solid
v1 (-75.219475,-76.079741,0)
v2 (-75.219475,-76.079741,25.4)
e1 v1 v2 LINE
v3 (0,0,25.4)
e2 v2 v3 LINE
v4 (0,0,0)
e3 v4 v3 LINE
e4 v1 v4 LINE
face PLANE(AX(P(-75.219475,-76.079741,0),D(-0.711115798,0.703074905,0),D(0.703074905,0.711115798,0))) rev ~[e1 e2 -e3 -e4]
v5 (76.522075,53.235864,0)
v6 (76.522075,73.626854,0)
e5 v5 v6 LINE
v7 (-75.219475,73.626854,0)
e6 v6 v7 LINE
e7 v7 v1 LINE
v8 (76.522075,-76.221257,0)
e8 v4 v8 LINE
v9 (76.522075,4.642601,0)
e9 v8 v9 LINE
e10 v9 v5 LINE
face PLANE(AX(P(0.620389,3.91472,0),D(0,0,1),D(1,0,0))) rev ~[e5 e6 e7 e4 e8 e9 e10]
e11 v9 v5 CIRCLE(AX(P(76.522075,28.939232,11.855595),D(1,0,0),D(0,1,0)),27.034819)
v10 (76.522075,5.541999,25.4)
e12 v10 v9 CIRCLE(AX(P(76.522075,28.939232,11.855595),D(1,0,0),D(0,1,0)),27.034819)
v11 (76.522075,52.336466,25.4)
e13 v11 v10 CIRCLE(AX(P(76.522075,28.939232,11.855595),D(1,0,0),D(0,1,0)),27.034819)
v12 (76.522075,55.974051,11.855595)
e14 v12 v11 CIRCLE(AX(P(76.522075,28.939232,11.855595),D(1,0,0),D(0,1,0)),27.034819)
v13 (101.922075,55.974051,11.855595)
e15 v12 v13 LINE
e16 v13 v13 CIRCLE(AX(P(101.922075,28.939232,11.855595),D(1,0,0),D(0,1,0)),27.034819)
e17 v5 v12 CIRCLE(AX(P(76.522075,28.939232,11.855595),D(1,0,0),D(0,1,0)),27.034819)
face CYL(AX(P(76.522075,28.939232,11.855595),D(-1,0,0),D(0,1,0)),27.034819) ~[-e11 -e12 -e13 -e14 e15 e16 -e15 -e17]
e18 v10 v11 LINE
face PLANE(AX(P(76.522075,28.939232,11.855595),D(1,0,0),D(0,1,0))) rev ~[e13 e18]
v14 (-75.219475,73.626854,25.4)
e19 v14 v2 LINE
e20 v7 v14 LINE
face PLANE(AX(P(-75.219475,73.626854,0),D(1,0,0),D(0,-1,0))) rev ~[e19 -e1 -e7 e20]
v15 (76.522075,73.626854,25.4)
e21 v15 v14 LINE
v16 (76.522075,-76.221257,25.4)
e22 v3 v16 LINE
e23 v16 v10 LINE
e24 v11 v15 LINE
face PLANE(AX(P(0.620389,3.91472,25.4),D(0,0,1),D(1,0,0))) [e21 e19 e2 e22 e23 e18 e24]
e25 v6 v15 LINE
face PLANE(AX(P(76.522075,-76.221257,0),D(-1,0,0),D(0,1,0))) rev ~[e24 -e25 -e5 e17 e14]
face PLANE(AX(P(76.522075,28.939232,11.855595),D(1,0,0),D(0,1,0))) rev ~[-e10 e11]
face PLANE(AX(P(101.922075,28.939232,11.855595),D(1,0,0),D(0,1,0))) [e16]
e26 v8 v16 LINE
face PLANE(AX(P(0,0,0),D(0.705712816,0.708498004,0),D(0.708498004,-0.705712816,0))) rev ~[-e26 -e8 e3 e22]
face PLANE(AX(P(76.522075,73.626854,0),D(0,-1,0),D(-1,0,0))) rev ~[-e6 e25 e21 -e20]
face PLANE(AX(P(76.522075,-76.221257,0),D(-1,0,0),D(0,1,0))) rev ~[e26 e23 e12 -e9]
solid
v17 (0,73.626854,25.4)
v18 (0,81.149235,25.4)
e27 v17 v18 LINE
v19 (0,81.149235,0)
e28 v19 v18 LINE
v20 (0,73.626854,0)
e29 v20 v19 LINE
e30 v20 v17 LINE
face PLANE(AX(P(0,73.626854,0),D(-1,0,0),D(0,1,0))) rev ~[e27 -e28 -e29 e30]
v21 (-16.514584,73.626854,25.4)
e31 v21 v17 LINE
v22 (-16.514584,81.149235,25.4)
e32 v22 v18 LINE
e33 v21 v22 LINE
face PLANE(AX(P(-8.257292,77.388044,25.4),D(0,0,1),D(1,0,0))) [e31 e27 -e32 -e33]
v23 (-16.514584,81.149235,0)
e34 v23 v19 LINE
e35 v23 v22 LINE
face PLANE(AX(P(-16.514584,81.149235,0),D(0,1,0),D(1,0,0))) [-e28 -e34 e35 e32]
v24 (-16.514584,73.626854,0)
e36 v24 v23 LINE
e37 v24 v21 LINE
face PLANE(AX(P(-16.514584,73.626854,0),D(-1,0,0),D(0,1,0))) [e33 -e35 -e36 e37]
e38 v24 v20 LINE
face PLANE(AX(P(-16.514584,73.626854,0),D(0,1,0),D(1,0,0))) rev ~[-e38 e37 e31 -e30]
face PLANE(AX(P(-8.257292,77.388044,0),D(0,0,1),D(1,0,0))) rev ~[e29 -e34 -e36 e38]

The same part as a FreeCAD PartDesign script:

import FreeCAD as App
import Part
import Sketcher

V = App.Vector
Q = App.Units.Quantity


def add_polygon(sketch, points):
    """Adds a closed chain of lines whose ends are joined by coincident constraints."""
    first, n = sketch.GeometryCount, len(points)
    for a, b in zip(points, points[1:] + points[:1]):
        sketch.addGeometry(Part.LineSegment(App.Vector(*a, 0), App.Vector(*b, 0)), False)
    for i in range(n):
        sketch.addConstraint(Sketcher.Constraint("Coincident", first + i, 2, first + (i + 1) % n, 1))

doc = App.newDocument("Part")
body = doc.addObject("PartDesign::Body", "Body")

# Sketch on XY plane
sketch1 = body.newObject("Sketcher::SketchObject", "Sketch")
sketch1.AttachmentSupport = (doc.getObject("XY_Plane"), [""])
sketch1.MapMode = "FlatFace"
add_polygon(sketch1, [(-75.219475, -76.079741), (0, 0), (76.522075, -76.221257), (76.522075, 73.626854), (-75.219475, 73.626854)])  # lines 0-4
sketch1.addConstraint([
    Sketcher.Constraint("Vertical", 2),
    Sketcher.Constraint("Horizontal", 3),
    Sketcher.Constraint("Vertical", 4),
    Sketcher.Constraint("Coincident", 0, 2, -1, 1),
    Sketcher.Constraint("DistanceX", 3, 2, 3, 1, Q("151.741549 mm")),
    Sketcher.Constraint("DistanceY", 2, 1, 2, 2, Q("149.848111 mm")),
    Sketcher.Constraint("Distance", 0, Q("106.986431 mm")),
    Sketcher.Constraint("DistanceY", 4, 2, 4, 1, Q("149.706595 mm")),
    Sketcher.Constraint("DistanceY", 4, 2, -1, 1, Q("76.079741 mm")),
])
pad1 = body.newObject("PartDesign::Pad", "Pad")
pad1.Profile = sketch1
pad1.Length = Q("1 in")

# Sketch on YZ plane
sketch2 = body.newObject("Sketcher::SketchObject", "Sketch001")
sketch2.AttachmentSupport = (doc.getObject("YZ_Plane"), [""])
sketch2.MapMode = "FlatFace"
sketch2.AttachmentOffset = App.Placement(V(0, 0, 76.522075), App.Rotation())
sketch2.addGeometry(Part.Circle(V(28.939232, 11.855595, 0), V(0, 0, 1), 27.034819), False)
sketch2.addConstraint([
    Sketcher.Constraint("Diameter", 0, Q("54.069638 mm")),
    Sketcher.Constraint("DistanceX", -1, 1, 0, 3, Q("28.939232 mm")),
    Sketcher.Constraint("DistanceY", -1, 1, 0, 3, Q("11.855595 mm")),
])
pad2 = body.newObject("PartDesign::Pad", "Pad001")
pad2.Profile = sketch2
pad2.Length = Q("1 in")
body2 = doc.addObject("PartDesign::Body", "Body001")

# Sketch on XY plane
sketch3 = body2.newObject("Sketcher::SketchObject", "Sketch002")
sketch3.AttachmentSupport = (doc.getObject("XY_Plane001"), [""])
sketch3.MapMode = "FlatFace"
add_polygon(sketch3, [(-16.514584, 81.149235), (-16.514584, 73.626854), (0, 73.626854), (0, 81.149235)])  # lines 0-3
sketch3.addConstraint([
    Sketcher.Constraint("Vertical", 0),
    Sketcher.Constraint("Horizontal", 1),
    Sketcher.Constraint("Vertical", 2),
    Sketcher.Constraint("Horizontal", 3),
    Sketcher.Constraint("PointOnObject", 1, 2, -2),
    Sketcher.Constraint("DistanceY", 0, 2, 0, 1, Q("7.522382 mm")),
    Sketcher.Constraint("DistanceX", 1, 1, 1, 2, Q("16.514584 mm")),
    Sketcher.Constraint("DistanceY", -1, 1, 0, 2, Q("73.626854 mm")),
])
pad3 = body2.newObject("PartDesign::Pad", "Pad002")
pad3.Profile = sketch3
pad3.Length = Q("1 in")

doc.recompute()
